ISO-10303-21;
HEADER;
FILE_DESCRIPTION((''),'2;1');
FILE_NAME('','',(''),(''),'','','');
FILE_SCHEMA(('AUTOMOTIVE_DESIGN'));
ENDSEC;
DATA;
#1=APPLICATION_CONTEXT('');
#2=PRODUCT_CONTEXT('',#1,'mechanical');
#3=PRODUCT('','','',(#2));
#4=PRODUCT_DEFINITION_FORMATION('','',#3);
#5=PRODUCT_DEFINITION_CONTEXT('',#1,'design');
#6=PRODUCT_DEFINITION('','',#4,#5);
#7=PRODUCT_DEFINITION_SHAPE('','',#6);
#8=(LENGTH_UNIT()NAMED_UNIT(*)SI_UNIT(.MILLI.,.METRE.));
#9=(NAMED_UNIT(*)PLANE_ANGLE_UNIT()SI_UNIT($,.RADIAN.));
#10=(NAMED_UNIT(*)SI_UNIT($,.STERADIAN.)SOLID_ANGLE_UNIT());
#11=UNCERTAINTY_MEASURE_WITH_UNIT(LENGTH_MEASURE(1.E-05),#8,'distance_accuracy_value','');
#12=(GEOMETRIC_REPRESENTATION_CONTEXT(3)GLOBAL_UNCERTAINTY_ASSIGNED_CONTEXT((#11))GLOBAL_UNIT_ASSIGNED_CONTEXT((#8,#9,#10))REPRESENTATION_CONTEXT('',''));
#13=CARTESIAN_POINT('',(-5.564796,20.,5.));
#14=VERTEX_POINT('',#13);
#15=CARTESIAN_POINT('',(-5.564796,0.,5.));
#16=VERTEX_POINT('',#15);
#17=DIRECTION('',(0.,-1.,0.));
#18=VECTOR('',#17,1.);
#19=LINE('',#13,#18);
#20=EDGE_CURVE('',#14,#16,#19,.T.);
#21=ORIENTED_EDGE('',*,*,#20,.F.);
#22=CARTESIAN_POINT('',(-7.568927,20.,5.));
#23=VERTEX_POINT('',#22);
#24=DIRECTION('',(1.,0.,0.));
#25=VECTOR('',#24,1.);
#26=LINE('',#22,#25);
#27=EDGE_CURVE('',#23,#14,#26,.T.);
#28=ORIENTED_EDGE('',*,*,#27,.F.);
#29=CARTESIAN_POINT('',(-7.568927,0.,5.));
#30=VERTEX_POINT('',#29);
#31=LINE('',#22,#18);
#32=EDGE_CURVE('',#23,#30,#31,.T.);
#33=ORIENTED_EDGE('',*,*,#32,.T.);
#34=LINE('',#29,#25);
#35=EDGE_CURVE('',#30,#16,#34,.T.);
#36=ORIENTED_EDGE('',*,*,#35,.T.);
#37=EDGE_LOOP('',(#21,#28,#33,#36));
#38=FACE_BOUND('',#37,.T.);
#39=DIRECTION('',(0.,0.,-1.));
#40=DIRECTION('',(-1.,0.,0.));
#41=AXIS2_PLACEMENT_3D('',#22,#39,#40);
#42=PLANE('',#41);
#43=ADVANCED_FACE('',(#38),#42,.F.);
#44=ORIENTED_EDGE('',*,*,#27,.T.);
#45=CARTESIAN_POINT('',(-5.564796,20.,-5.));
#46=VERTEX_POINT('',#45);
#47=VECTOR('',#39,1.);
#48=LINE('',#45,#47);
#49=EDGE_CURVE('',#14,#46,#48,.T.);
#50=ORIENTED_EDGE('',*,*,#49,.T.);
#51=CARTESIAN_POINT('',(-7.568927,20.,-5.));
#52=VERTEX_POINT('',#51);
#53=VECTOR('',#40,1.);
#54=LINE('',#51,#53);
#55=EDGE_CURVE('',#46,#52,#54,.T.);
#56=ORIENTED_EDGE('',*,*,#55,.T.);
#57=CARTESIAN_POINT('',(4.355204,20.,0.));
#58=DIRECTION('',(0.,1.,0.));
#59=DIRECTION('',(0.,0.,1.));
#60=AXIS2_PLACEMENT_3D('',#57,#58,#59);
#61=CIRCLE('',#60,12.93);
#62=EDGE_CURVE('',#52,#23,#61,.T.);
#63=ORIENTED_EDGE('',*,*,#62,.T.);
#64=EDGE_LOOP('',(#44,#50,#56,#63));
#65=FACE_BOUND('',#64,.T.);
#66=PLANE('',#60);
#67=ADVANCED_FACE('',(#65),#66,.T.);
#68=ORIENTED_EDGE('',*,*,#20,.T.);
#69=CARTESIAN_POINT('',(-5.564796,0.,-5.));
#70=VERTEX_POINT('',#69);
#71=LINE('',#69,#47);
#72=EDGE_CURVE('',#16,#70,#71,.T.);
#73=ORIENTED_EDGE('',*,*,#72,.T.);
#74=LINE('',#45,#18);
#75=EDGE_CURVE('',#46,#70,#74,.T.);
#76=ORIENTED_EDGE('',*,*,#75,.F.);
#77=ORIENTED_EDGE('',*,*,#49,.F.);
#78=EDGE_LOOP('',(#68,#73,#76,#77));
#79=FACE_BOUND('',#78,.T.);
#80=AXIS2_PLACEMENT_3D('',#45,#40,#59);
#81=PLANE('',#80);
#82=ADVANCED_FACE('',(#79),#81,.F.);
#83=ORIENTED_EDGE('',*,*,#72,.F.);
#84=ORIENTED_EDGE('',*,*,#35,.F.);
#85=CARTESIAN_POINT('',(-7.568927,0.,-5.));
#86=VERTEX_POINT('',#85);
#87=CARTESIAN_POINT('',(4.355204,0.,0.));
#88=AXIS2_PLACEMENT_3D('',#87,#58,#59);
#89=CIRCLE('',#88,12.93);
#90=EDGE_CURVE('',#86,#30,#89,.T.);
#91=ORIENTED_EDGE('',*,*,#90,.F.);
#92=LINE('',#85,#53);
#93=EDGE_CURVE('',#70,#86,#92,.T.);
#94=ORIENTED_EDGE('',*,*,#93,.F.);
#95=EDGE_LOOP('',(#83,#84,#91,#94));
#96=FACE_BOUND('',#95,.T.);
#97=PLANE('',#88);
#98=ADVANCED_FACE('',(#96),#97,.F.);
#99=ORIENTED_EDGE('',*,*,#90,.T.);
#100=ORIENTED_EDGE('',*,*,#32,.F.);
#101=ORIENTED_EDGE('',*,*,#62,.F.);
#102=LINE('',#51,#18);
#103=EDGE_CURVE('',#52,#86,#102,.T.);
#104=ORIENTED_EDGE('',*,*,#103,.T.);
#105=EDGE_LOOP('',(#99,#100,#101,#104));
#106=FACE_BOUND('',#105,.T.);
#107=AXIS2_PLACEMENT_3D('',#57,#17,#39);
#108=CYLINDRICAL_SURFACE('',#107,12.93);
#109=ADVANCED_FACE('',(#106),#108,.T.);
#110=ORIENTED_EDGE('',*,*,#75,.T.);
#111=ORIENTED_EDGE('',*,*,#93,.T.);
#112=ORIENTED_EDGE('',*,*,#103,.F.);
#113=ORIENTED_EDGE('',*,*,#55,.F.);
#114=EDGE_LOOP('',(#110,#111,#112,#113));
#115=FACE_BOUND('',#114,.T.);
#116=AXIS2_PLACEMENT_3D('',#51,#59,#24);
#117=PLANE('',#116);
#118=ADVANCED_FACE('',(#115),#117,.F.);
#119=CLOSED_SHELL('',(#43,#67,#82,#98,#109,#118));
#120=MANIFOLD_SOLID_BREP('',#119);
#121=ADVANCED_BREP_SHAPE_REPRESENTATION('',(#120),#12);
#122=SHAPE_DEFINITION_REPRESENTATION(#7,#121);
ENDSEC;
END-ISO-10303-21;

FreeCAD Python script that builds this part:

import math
import FreeCAD as App
import Part
import Sketcher
from FreeCAD import Vector

doc = App.newDocument("Part")
params = doc.addObject("Spreadsheet::Sheet", "Params")
for row, (alias, value) in enumerate([
    ("sketch1_height", "10 mm"),
    ("sketch1_radius", "12.93 mm"),
    ("pad1_length", "20 mm"),
], start=1):
    params.set(f"A{row}", alias)
    params.set(f"B{row}", "=" + value)
    params.setAlias(f"B{row}", alias)

body = doc.addObject("PartDesign::Body", "Body")

sketch1 = body.newObject("Sketcher::SketchObject", "Sketch")
sketch1.AttachmentSupport = (doc.getObject("XZ_Plane"), [""])
sketch1.MapMode = "FlatFace"
sketch1.addGeometry([
    Part.LineSegment(Vector(-5.564796, -5, 0), Vector(-7.568927, -5, 0)),
    Part.ArcOfCircle(Part.Circle(Vector(4.355204, 0, 0), Vector(0, 0, 1), 12.93), math.radians(157.25083), math.radians(202.74917)),
    Part.LineSegment(Vector(-7.568927, 5, 0), Vector(-5.564796, 5, 0)),
    Part.LineSegment(Vector(-5.564796, 5, 0), Vector(-5.564796, -5, 0)),
], False)
sketch1.addConstraint([
    Sketcher.Constraint("Coincident", 0, 2, 1, 2),
    Sketcher.Constraint("Coincident", 1, 1, 2, 1),
    Sketcher.Constraint("Coincident", 2, 2, 3, 1),
    Sketcher.Constraint("Coincident", 3, 2, 0, 1),
    Sketcher.Constraint("Horizontal", 0),
    Sketcher.Constraint("Horizontal", 2),
    Sketcher.Constraint("Vertical", 3),
    Sketcher.Constraint("Symmetric", 0, 2, 1, 1, -1),
    Sketcher.Constraint("DistanceY", 3, 2, 3, 1, 10.0),
    Sketcher.Constraint("Radius", 1, 12.93),
    Sketcher.Constraint("DistanceX", 2, 2, 1, 3, 9.92),
    Sketcher.Constraint("DistanceX", -1, 1, 1, 3, 4.355204),
])
sketch1.setExpression("Constraints[8]", "Params.sketch1_height")
sketch1.setExpression("Constraints[9]", "Params.sketch1_radius")
pad1 = body.newObject("PartDesign::Pad", "Pad")
pad1.Profile = sketch1
pad1.setExpression("Length", "Params.pad1_length")
pad1.Reversed = True

doc.recompute()
